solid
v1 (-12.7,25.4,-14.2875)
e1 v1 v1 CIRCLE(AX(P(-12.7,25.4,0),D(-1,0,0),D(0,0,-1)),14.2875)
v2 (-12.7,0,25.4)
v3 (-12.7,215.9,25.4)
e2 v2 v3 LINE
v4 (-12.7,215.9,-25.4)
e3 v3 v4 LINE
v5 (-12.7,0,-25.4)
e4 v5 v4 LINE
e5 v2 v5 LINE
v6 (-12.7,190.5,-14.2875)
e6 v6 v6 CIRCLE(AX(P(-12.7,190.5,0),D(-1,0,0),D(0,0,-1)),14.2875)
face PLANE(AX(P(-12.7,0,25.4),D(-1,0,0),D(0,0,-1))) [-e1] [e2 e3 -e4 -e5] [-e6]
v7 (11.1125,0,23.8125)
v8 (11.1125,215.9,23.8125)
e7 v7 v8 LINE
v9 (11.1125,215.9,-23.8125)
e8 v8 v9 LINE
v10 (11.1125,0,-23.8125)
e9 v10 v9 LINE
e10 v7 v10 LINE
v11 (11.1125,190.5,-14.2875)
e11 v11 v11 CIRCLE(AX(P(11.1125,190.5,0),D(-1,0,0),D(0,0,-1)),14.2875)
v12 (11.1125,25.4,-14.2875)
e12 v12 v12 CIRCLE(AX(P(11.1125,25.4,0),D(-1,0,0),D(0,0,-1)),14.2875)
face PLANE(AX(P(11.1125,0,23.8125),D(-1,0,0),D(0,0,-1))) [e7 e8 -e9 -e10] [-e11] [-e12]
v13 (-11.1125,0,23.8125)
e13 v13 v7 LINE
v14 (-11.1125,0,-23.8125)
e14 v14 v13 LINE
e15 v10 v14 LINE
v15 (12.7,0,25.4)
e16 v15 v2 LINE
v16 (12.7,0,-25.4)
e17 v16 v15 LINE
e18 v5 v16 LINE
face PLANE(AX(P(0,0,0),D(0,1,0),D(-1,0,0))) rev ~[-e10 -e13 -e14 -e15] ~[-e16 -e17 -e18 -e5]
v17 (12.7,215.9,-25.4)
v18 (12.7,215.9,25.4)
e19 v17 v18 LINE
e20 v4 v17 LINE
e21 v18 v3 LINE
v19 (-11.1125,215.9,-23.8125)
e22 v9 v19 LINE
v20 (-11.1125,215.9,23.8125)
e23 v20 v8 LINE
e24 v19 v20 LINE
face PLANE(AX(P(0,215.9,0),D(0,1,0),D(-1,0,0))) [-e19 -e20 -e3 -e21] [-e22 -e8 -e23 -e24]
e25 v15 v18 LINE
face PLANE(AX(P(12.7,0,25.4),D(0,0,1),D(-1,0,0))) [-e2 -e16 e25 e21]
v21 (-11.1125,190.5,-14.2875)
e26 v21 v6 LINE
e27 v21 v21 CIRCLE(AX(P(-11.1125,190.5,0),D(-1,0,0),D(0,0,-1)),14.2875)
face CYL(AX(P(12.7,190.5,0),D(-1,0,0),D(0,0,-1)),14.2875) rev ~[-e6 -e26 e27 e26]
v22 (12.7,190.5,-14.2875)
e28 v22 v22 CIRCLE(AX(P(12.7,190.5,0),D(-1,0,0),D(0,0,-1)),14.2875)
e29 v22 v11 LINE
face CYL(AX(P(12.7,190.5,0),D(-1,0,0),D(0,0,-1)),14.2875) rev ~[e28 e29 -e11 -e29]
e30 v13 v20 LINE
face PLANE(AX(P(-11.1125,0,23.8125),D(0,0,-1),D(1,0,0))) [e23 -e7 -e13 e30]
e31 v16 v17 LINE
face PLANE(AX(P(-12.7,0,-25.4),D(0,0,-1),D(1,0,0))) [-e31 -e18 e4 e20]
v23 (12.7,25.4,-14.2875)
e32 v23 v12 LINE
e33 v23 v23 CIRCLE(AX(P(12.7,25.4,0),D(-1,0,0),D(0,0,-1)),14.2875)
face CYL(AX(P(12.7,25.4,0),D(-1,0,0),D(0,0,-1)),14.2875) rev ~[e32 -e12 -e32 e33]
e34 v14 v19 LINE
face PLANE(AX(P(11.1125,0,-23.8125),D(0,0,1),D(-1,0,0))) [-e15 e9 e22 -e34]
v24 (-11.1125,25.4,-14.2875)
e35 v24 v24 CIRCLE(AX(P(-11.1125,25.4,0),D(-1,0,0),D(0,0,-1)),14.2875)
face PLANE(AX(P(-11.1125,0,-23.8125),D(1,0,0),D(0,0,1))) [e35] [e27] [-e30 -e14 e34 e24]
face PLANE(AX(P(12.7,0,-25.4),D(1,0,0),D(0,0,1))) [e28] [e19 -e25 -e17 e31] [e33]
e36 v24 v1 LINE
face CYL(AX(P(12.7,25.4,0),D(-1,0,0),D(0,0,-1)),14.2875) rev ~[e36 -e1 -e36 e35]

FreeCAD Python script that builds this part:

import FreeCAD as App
import Part
import Sketcher
Q = App.Units.Quantity


def add_polygon(sketch, points):
    """Adds a closed chain of lines whose ends are joined by coincident constraints."""
    first, n = sketch.GeometryCount, len(points)
    for a, b in zip(points, points[1:] + points[:1]):
        sketch.addGeometry(Part.LineSegment(App.Vector(*a, 0), App.Vector(*b, 0)), False)
    for i in range(n):
        sketch.addConstraint(Sketcher.Constraint("Coincident", first + i, 2, first + (i + 1) % n, 1))

doc = App.newDocument("Part")
body = doc.addObject("PartDesign::Body", "Body")

sketch1 = body.newObject("Sketcher::SketchObject", "Sketch")
sketch1.AttachmentSupport = (doc.getObject("XZ_Plane"), [""])
sketch1.MapMode = "FlatFace"
add_polygon(sketch1, [(-12.7, 25.4), (12.7, 25.4), (12.7, -25.4), (-12.7, -25.4)])
add_polygon(sketch1, [(11.1125, 23.8125), (-11.1125, 23.8125), (-11.1125, -23.8125), (11.1125, -23.8125)])
sketch1.addConstraint([
    Sketcher.Constraint("Horizontal", 0),
    Sketcher.Constraint("Vertical", 1),
    Sketcher.Constraint("Horizontal", 2),
    Sketcher.Constraint("Vertical", 3),
    Sketcher.Constraint("Horizontal", 4),
    Sketcher.Constraint("Vertical", 5),
    Sketcher.Constraint("Horizontal", 6),
    Sketcher.Constraint("Vertical", 7),
    Sketcher.Constraint("Symmetric", 0, 2, 2, 2, -1, 1),
    Sketcher.Constraint("Symmetric", 4, 2, 6, 2, -1, 1),
    Sketcher.Constraint("DistanceX", 0, 1, 0, 2, Q("1 in")),
    Sketcher.Constraint("DistanceY", 1, 2, 1, 1, Q("2 in")),
    Sketcher.Constraint("DistanceX", 4, 2, 4, 1, Q("0.875 in")),
    Sketcher.Constraint("DistanceY", 5, 2, 5, 1, Q("1.875 in")),
])
pad1 = body.newObject("PartDesign::Pad", "Pad")
pad1.Profile = sketch1
pad1.Length = Q("8.5 in")
pad1.Reversed = True

sketch2 = body.newObject("Sketcher::SketchObject", "Sketch001")
sketch2.AttachmentSupport = (doc.getObject("YZ_Plane"), [""])
sketch2.MapMode = "FlatFace"
sketch2.AttachmentOffset = App.Placement(App.Vector(0, 0, 0.5 * 25.4), App.Rotation())
sketch2.addGeometry(Part.Circle(App.Vector(190.5, 0, 0), App.Vector(0, 0, 1), 14.2875), False)
sketch2.addConstraint([
    Sketcher.Constraint("PointOnObject", 0, 3, -1),
    Sketcher.Constraint("Diameter", 0, Q("1.125 in")),
    Sketcher.Constraint("DistanceX", -1, 1, 0, 3, Q("7.5 in")),
])
doc.recompute()
hole = body.newObject("PartDesign::Hole", "Hole")
hole.Profile = sketch2
hole.ThreadType = "None"
hole.Diameter = Q("1.125 in")
hole.DepthType = "ThroughAll"

sketch3 = body.newObject("Sketcher::SketchObject", "Sketch002")
sketch3.AttachmentSupport = (doc.getObject("YZ_Plane"), [""])
sketch3.MapMode = "FlatFace"
sketch3.AttachmentOffset = App.Placement(App.Vector(0, 0, 0.5 * 25.4), App.Rotation())
sketch3.addGeometry(Part.Circle(App.Vector(25.4, 0, 0), App.Vector(0, 0, 1), 14.2875), False)
sketch3.addConstraint([
    Sketcher.Constraint("PointOnObject", 0, 3, -1),
    Sketcher.Constraint("Diameter", 0, Q("1.125 in")),
    Sketcher.Constraint("DistanceX", -1, 1, 0, 3, Q("1 in")),
])
doc.recompute()
hole2 = body.newObject("PartDesign::Hole", "Hole001")
hole2.Profile = sketch3
hole2.ThreadType = "None"
hole2.Diameter = Q("1.125 in")
hole2.DepthType = "ThroughAll"

doc.recompute()
